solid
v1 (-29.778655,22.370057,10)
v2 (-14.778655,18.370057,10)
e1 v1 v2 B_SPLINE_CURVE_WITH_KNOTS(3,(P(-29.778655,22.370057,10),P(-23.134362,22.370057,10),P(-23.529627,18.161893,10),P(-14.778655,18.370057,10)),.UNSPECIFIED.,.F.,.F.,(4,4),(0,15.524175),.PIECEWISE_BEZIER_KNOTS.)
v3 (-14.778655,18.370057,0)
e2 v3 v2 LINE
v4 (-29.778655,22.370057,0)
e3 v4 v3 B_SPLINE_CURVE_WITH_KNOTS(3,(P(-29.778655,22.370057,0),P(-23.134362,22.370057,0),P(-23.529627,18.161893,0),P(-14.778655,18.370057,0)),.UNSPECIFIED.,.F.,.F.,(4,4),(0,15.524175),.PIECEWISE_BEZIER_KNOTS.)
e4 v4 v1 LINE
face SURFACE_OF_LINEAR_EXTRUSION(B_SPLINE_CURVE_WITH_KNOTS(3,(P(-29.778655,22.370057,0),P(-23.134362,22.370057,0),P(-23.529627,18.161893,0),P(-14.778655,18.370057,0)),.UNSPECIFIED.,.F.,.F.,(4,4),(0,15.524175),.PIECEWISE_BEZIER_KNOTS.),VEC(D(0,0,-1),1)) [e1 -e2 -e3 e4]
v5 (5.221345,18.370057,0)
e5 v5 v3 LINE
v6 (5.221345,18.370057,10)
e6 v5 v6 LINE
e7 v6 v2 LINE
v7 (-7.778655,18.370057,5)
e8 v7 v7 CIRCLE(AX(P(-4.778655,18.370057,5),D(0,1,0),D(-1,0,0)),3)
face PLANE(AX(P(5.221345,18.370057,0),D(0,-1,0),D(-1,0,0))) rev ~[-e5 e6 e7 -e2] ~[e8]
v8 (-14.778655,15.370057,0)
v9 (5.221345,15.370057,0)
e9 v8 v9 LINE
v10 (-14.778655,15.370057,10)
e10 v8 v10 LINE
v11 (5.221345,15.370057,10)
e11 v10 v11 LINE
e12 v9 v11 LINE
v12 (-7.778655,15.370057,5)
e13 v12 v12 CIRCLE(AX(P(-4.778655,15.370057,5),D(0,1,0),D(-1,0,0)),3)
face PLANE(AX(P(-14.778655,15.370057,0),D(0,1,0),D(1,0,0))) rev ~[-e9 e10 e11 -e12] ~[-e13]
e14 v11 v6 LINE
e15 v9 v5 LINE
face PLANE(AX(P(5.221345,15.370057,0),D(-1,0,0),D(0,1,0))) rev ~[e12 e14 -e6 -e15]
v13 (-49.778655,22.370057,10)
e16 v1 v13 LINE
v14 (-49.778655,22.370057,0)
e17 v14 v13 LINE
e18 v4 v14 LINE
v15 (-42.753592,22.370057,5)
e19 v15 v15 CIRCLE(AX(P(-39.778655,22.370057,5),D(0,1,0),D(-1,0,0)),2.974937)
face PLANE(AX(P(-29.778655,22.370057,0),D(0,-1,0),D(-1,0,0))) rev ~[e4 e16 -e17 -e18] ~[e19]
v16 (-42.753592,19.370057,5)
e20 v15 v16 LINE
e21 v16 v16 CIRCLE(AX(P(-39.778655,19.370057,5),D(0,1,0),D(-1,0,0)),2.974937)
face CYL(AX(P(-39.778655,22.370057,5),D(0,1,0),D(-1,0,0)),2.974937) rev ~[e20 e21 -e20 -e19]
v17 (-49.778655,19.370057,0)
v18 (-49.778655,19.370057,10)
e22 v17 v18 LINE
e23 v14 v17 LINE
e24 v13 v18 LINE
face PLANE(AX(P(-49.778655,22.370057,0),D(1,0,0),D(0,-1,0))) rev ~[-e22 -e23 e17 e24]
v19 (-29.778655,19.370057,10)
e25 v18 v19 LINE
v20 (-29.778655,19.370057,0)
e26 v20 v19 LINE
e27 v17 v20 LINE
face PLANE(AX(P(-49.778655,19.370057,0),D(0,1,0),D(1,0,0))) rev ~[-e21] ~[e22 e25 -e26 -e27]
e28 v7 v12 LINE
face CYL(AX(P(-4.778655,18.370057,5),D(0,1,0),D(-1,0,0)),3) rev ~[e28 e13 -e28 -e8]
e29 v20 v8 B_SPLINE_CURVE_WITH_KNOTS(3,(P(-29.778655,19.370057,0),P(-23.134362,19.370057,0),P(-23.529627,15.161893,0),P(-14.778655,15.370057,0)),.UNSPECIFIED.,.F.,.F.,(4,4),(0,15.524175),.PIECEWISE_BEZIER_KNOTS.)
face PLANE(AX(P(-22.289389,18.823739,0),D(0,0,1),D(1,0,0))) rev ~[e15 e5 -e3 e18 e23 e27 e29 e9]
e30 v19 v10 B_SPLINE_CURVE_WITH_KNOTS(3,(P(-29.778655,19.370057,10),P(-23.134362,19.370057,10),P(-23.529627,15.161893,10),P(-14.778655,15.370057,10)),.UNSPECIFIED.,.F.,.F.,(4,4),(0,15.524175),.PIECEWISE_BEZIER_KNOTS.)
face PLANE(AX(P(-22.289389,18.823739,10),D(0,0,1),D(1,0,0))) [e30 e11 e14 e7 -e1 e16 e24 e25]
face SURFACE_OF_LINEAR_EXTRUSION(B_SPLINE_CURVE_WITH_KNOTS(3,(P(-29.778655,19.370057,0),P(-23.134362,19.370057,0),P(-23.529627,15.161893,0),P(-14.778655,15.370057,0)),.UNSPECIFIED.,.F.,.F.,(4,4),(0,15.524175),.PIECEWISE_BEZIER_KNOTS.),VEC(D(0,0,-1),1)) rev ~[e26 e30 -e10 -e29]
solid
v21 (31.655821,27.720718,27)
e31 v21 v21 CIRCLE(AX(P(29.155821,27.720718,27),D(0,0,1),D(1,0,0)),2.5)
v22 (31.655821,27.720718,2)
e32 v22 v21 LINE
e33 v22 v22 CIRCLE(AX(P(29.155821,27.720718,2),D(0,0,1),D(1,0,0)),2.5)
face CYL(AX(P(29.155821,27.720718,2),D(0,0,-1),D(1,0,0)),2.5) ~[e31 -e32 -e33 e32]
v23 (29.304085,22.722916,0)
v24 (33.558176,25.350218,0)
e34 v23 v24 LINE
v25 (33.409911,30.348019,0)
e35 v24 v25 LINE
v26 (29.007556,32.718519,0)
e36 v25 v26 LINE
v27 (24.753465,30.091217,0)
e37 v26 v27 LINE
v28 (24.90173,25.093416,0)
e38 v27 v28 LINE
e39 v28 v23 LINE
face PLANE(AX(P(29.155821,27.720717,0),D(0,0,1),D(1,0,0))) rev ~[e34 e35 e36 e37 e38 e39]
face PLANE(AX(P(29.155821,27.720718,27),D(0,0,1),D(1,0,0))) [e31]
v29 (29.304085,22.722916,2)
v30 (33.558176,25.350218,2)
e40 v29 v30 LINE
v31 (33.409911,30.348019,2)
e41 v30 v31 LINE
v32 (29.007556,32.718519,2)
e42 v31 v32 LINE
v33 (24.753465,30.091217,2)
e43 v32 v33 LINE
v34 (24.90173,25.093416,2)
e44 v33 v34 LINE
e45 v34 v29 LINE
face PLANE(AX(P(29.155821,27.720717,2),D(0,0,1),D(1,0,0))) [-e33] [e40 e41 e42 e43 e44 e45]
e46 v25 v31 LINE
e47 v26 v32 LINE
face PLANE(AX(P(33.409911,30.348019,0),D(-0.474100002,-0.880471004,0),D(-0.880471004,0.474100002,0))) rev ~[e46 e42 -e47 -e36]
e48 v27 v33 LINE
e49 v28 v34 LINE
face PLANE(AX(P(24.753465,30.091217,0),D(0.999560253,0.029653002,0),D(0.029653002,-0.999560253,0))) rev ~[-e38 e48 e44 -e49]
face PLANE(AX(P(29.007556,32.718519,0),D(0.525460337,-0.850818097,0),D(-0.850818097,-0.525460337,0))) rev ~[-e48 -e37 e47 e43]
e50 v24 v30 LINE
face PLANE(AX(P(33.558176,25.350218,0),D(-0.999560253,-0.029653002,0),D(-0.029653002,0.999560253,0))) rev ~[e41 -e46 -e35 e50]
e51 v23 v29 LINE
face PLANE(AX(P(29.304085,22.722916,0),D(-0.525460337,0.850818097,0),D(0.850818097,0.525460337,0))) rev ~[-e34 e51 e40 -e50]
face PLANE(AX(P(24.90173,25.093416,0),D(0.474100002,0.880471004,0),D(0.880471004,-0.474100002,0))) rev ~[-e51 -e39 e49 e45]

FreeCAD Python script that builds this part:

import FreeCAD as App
import Part
import Sketcher
from FreeCAD import Vector


def add_polygon(sketch, points):
    """Adds a closed chain of lines whose ends are joined by coincident constraints."""
    first, n = sketch.GeometryCount, len(points)
    for a, b in zip(points, points[1:] + points[:1]):
        sketch.addGeometry(Part.LineSegment(App.Vector(*a, 0), App.Vector(*b, 0)), False)
    for i in range(n):
        sketch.addConstraint(Sketcher.Constraint("Coincident", first + i, 2, first + (i + 1) % n, 1))

doc = App.newDocument("Part")
body = doc.addObject("PartDesign::Body", "Body")

sketch1 = body.newObject("Sketcher::SketchObject", "Sketch")
sketch1.AttachmentSupport = (doc.getObject("XY_Plane"), [""])
sketch1.MapMode = "FlatFace"
sketch1.addGeometry(Part.LineSegment(Vector(-29.778655, 22.370057, 0), Vector(-49.778655, 22.370057, 0)), False)
sketch1.addGeometry(Part.LineSegment(Vector(-49.778655, 22.370057, 0), Vector(-49.778655, 19.370057, 0)), False)
sketch1.addGeometry(Part.LineSegment(Vector(-49.778655, 19.370057, 0), Vector(-29.778655, 19.370057, 0)), False)
sketch1.addGeometry(Part.BSplineCurve([Vector(-29.778655, 19.370057, 0), Vector(-23.134362, 19.370057, 0), Vector(-23.529627, 15.161893, 0), Vector(-14.778655, 15.370057, 0)], [4, 4], [0, 15.524175], False, 3, [1, 1, 1, 1], False), False)
sketch1.addGeometry(Part.LineSegment(Vector(-14.778655, 15.370057, 0), Vector(5.221345, 15.370057, 0)), False)
sketch1.addGeometry(Part.LineSegment(Vector(5.221345, 15.370057, 0), Vector(5.221345, 18.370057, 0)), False)
sketch1.addGeometry(Part.LineSegment(Vector(5.221345, 18.370057, 0), Vector(-14.778655, 18.370057, 0)), False)
sketch1.addGeometry(Part.BSplineCurve([Vector(-29.778655, 22.370057, 0), Vector(-23.134362, 22.370057, 0), Vector(-23.529627, 18.161893, 0), Vector(-14.778655, 18.370057, 0)], [4, 4], [0, 15.524175], False, 3, [1, 1, 1, 1], False), False)
sketch1.addConstraint(Sketcher.Constraint("Block", 3))
sketch1.addConstraint(Sketcher.Constraint("Block", 7))
sketch1.addConstraint(Sketcher.Constraint("Coincident", 0, 2, 1, 1))
sketch1.addConstraint(Sketcher.Constraint("Coincident", 1, 2, 2, 1))
sketch1.addConstraint(Sketcher.Constraint("Coincident", 2, 2, 3, 1))
sketch1.addConstraint(Sketcher.Constraint("Coincident", 3, 2, 4, 1))
sketch1.addConstraint(Sketcher.Constraint("Coincident", 4, 2, 5, 1))
sketch1.addConstraint(Sketcher.Constraint("Coincident", 5, 2, 6, 1))
sketch1.addConstraint(Sketcher.Constraint("Coincident", 6, 2, 7, 2))
sketch1.addConstraint(Sketcher.Constraint("Coincident", 7, 1, 0, 1))
sketch1.addConstraint(Sketcher.Constraint("Horizontal", 0))
sketch1.addConstraint(Sketcher.Constraint("Vertical", 1))
sketch1.addConstraint(Sketcher.Constraint("Horizontal", 2))
sketch1.addConstraint(Sketcher.Constraint("Horizontal", 4))
sketch1.addConstraint(Sketcher.Constraint("Vertical", 5))
sketch1.addConstraint(Sketcher.Constraint("Horizontal", 6))
sketch1.addConstraint(Sketcher.Constraint("DistanceX", 0, 2, 0, 1, 20.0))
sketch1.addConstraint(Sketcher.Constraint("DistanceX", 4, 1, 4, 2, 20.0))
pad1 = body.newObject("PartDesign::Pad", "Pad")
pad1.Profile = sketch1
pad1.Length = 10

sketch2 = body.newObject("Sketcher::SketchObject", "Sketch001")
sketch2.AttachmentSupport = (doc.getObject("XZ_Plane"), [""])
sketch2.MapMode = "FlatFace"
sketch2.AttachmentOffset = App.Placement(Vector(0, 0, -22.370057), App.Rotation())
sketch2.addGeometry(Part.Circle(Vector(-39.8, 5, 0), Vector(0, 0, 1), 3), False)
sketch2.addConstraint(Sketcher.Constraint("DistanceY", -1, 1, 0, 3, 5.0))
sketch2.addConstraint(Sketcher.Constraint("Diameter", 0, 5.949874))
sketch2.addConstraint(Sketcher.Constraint("DistanceX", 0, 3, -1, 1, 39.778655))
pocket1 = body.newObject("PartDesign::Pocket", "Pocket")
pocket1.Profile = sketch2
pocket1.Type = "ThroughAll"
pocket1.Reversed = True

sketch3 = body.newObject("Sketcher::SketchObject", "Sketch002")
sketch3.AttachmentSupport = (doc.getObject("XZ_Plane"), [""])
sketch3.MapMode = "FlatFace"
sketch3.AttachmentOffset = App.Placement(Vector(0, 0, -18.370057), App.Rotation())
sketch3.addGeometry(Part.Circle(Vector(-4.8, 5, 0), Vector(0, 0, 1), 3), False)
sketch3.addConstraint(Sketcher.Constraint("Diameter", 0, 6.0))
sketch3.addConstraint(Sketcher.Constraint("DistanceY", -1, 1, 0, 3, 5.0))
sketch3.addConstraint(Sketcher.Constraint("DistanceX", 0, 3, -1, 1, 4.778655))
pocket2 = body.newObject("PartDesign::Pocket", "Pocket001")
pocket2.Profile = sketch3
pocket2.Type = "ThroughAll"
pocket2.Reversed = True
body2 = doc.addObject("PartDesign::Body", "Body001")

sketch4 = body2.newObject("Sketcher::SketchObject", "Sketch003")
sketch4.AttachmentSupport = (doc.getObject("XY_Plane001"), [""])
sketch4.MapMode = "FlatFace"
add_polygon(sketch4, [(29.007556, 32.718519), (24.753465, 30.091217), (24.90173, 25.093416), (29.304085, 22.722916), (33.558176, 25.350218), (33.409911, 30.348019)])
sketch4.addConstraint(Sketcher.Constraint("Distance", 0, 5.000001))
sketch4.addConstraint(Sketcher.Constraint("Distance", 1, 5.0))
sketch4.addConstraint(Sketcher.Constraint("Distance", 2, 5.0))
sketch4.addConstraint(Sketcher.Constraint("Distance", 3, 5.000001))
sketch4.addConstraint(Sketcher.Constraint("Distance", 4, 5.0))
sketch4.addConstraint(Sketcher.Constraint("Distance", 5, 5.0))
sketch4.addConstraint(Sketcher.Constraint("DistanceY", 3, 2, 0, 2, 4.740999))
sketch4.addConstraint(Sketcher.Constraint("DistanceY", 1, 2, 0, 2, 4.997801))
sketch4.addConstraint(Sketcher.Constraint("DistanceY", 2, 2, 1, 2, 2.3705))
sketch4.addConstraint(Sketcher.Constraint("DistanceY", 3, 2, 4, 2, 4.997801))
sketch4.addConstraint(Sketcher.Constraint("DistanceX", -1, 1, 1, 2, 24.90173))
sketch4.addConstraint(Sketcher.Constraint("DistanceY", -1, 1, 3, 2, 25.350218))
pad2 = body2.newObject("PartDesign::Pad", "Pad001")
pad2.Profile = sketch4
pad2.Length = 2

sketch5 = body2.newObject("Sketcher::SketchObject", "Sketch004")
sketch5.AttachmentSupport = (doc.getObject("XY_Plane001"), [""])
sketch5.MapMode = "FlatFace"
sketch5.AttachmentOffset = App.Placement(Vector(0, 0, 2), App.Rotation())
sketch5.addGeometry(Part.Circle(Vector(29.2, 27.7, 0), Vector(0, 0, 1), 2.5), False)
sketch5.addConstraint(Sketcher.Constraint("Diameter", 0, 5.0))
sketch5.addConstraint(Sketcher.Constraint("DistanceX", -1, 1, 0, 3, 29.155821))
sketch5.addConstraint(Sketcher.Constraint("DistanceY", -1, 1, 0, 3, 27.720718))
pad3 = body2.newObject("PartDesign::Pad", "Pad002")
pad3.Profile = sketch5
pad3.Length = 25

doc.recompute()
